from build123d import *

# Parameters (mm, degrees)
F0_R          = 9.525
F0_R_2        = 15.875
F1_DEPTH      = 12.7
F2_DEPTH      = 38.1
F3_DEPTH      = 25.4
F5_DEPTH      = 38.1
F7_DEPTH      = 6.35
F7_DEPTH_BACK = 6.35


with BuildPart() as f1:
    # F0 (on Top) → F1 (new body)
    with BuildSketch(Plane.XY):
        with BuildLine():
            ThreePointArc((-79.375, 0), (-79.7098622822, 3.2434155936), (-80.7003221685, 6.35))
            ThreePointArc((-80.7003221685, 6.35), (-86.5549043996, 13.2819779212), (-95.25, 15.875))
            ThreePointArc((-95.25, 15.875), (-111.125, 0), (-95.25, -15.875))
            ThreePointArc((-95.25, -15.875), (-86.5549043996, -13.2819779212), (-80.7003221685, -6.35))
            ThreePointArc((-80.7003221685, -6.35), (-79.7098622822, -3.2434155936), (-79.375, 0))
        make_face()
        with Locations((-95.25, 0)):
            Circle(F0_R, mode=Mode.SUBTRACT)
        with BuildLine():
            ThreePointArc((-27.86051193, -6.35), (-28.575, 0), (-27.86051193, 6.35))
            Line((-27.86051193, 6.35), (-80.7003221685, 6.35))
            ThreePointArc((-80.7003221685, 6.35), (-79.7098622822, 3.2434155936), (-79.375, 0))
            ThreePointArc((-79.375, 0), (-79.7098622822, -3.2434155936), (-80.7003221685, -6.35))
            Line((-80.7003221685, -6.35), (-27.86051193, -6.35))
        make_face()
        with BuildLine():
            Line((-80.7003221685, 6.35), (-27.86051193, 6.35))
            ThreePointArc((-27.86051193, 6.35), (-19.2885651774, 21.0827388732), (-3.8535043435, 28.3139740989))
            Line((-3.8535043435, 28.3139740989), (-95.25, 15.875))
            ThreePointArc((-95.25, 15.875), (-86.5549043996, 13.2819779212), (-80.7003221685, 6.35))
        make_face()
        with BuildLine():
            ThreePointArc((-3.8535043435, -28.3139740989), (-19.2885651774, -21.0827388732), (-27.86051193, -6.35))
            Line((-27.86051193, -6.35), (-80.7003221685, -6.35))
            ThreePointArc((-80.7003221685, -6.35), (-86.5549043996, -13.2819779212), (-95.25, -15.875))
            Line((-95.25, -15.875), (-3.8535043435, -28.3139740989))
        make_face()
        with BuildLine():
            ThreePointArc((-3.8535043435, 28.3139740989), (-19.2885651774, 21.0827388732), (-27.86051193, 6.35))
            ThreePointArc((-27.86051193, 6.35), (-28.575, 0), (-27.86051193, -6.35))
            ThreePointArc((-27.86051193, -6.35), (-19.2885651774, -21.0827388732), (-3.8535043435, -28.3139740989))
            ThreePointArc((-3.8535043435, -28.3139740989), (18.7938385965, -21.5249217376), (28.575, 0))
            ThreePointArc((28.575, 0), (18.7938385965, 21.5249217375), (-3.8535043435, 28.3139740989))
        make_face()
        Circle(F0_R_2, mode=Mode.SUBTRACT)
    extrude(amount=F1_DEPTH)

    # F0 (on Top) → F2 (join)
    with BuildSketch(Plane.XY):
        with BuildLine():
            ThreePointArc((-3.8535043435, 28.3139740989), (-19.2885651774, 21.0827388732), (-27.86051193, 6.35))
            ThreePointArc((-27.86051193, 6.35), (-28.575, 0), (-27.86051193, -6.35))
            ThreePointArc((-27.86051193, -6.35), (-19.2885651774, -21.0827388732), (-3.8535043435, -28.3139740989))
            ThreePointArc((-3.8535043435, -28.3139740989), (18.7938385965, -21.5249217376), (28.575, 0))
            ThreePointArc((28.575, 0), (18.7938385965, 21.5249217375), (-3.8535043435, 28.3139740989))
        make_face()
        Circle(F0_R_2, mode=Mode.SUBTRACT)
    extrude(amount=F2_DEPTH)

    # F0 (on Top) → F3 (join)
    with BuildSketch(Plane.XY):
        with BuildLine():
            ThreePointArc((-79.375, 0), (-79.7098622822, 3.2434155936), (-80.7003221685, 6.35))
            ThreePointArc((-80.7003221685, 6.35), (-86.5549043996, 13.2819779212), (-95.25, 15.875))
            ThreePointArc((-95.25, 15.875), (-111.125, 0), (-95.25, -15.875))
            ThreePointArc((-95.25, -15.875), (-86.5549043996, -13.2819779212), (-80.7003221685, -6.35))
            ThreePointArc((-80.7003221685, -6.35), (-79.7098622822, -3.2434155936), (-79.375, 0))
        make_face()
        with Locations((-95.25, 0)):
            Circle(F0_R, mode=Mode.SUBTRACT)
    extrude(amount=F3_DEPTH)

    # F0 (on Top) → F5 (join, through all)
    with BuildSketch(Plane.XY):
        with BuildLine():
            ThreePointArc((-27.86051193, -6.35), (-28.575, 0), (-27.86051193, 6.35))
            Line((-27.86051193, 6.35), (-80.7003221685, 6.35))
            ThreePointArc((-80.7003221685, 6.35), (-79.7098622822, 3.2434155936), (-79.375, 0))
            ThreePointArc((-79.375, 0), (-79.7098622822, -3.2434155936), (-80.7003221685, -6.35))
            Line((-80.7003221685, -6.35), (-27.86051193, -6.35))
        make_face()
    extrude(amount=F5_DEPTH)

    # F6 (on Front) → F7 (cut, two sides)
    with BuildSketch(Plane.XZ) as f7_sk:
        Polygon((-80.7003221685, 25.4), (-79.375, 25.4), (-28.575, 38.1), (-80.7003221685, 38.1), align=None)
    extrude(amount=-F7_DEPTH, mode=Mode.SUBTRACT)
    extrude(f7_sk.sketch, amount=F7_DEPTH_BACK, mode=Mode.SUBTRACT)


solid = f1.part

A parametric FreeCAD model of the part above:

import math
import FreeCAD as App
import Part
import Sketcher

V = App.Vector
Q = App.Units.Quantity

doc = App.newDocument("Part")
body = doc.addObject("PartDesign::Body", "Body")

# Sketch on XY plane
sketch1 = doc.addObject("Sketcher::SketchObject", "Sketch")
body.addObject(sketch1)
sketch1.AttachmentSupport = (doc.XY_Plane, [""])
sketch1.MapMode = "FlatFace"
sketch1.addGeometry(Part.ArcOfCircle(Part.Circle(V(-95, 0, 0), V(0, 0, 1), 16), math.radians(90), math.radians(270)), False)
sketch1.addGeometry(Part.LineSegment(V(-95, -16, 0), V(-4, -28, 0)), False)
sketch1.addGeometry(Part.ArcOfCircle(Part.Circle(V(0, 0, 0), V(0, 0, 1), 29), math.radians(-98), math.radians(0)), False)
sketch1.addGeometry(Part.ArcOfCircle(Part.Circle(V(0, 0, 0), V(0, 0, 1), 29), math.radians(0), math.radians(98)), False)
sketch1.addGeometry(Part.LineSegment(V(-4, 28, 0), V(-95, 16, 0)), False)
sketch1.addGeometry(Part.Circle(V(-95, 0, 0), V(0, 0, 1), 10), False)
sketch1.addGeometry(Part.Circle(V(0, 0, 0), V(0, 0, 1), 16), False)
sketch1.addConstraint(Sketcher.Constraint("Coincident", 0, 2, 1, 1))
sketch1.addConstraint(Sketcher.Constraint("Tangent", 1, 2, 2, 1))
sketch1.addConstraint(Sketcher.Constraint("Tangent", 2, 2, 3, 1))
sketch1.addConstraint(Sketcher.Constraint("Tangent", 3, 2, 4, 1))
sketch1.addConstraint(Sketcher.Constraint("Coincident", 4, 2, 0, 1))
sketch1.addConstraint(Sketcher.Constraint("Coincident", 2, 3, -1, 1))
sketch1.addConstraint(Sketcher.Constraint("Coincident", 6, 3, -1, 1))
sketch1.addConstraint(Sketcher.Constraint("Coincident", 5, 3, 0, 3))
sketch1.addConstraint(Sketcher.Constraint("Equal", 2, 3))
sketch1.addConstraint(Sketcher.Constraint("Equal", 0, 6))
sketch1.addConstraint(Sketcher.Constraint("Symmetric", 0, 2, 4, 2, -1))
sketch1.addConstraint(Sketcher.Constraint("PointOnObject", 2, 2, -1))
sketch1.addConstraint(Sketcher.Constraint("Vertical", 5, 3, 0, 2))
sketch1.addConstraint(Sketcher.Constraint("Diameter", 5, Q("0.75 in")))
sketch1.addConstraint(Sketcher.Constraint("Diameter", 6, Q("1.25 in")))
sketch1.addConstraint(Sketcher.Constraint("Radius", 2, Q("1.125 in")))
sketch1.addConstraint(Sketcher.Constraint("DistanceX", 0, 3, -1, 1, Q("3.75 in")))
pad1 = doc.addObject("PartDesign::Pad", "Pad")
body.addObject(pad1)
pad1.Profile = sketch1
pad1.Length = Q("0.5 in")

# Sketch on XY plane
sketch2 = doc.addObject("Sketcher::SketchObject", "Sketch001")
body.addObject(sketch2)
sketch2.AttachmentSupport = (doc.XY_Plane, [""])
sketch2.MapMode = "FlatFace"
sketch2.addGeometry(Part.ArcOfCircle(Part.Circle(V(0, 0, 0), V(0, 0, 1), 29), math.radians(98), math.radians(167)), False)
sketch2.addGeometry(Part.ArcOfCircle(Part.Circle(V(0, 0, 0), V(0, 0, 1), 29), math.radians(167), math.radians(193)), False)
sketch2.addGeometry(Part.ArcOfCircle(Part.Circle(V(0, 0, 0), V(0, 0, 1), 29), math.radians(-167), math.radians(0)), False)
sketch2.addGeometry(Part.ArcOfCircle(Part.Circle(V(0, 0, 0), V(0, 0, 1), 29), math.radians(0), math.radians(98)), False)
sketch2.addGeometry(Part.Circle(V(0, 0, 0), V(0, 0, 1), 16), False)
sketch2.addConstraint(Sketcher.Constraint("Tangent", 0, 2, 1, 1))
sketch2.addConstraint(Sketcher.Constraint("Tangent", 1, 2, 2, 1))
sketch2.addConstraint(Sketcher.Constraint("Tangent", 2, 2, 3, 1))
sketch2.addConstraint(Sketcher.Constraint("Tangent", 3, 2, 0, 1))
sketch2.addConstraint(Sketcher.Constraint("Coincident", 0, 3, -1, 1))
sketch2.addConstraint(Sketcher.Constraint("Coincident", 4, 3, -1, 1))
sketch2.addConstraint(Sketcher.Constraint("Equal", 0, 1))
sketch2.addConstraint(Sketcher.Constraint("PointOnObject", 2, 2, -1))
sketch2.addConstraint(Sketcher.Constraint("Vertical", 0, 2, 1, 2))
sketch2.addConstraint(Sketcher.Constraint("Diameter", 4, Q("1.25 in")))
sketch2.addConstraint(Sketcher.Constraint("Radius", 0, Q("1.125 in")))
sketch2.addConstraint(Sketcher.Constraint("DistanceY", 1, 2, 0, 2, Q("0.5 in")))
sketch2.addConstraint(Sketcher.Constraint("DistanceX", 3, 2, -1, 1, Q("3.853504 mm")))
pad2 = doc.addObject("PartDesign::Pad", "Pad001")
body.addObject(pad2)
pad2.Profile = sketch2
pad2.Length = Q("1.5 in")

# Sketch on XY plane
sketch3 = doc.addObject("Sketcher::SketchObject", "Sketch002")
body.addObject(sketch3)
sketch3.AttachmentSupport = (doc.XY_Plane, [""])
sketch3.MapMode = "FlatFace"
sketch3.addGeometry(Part.ArcOfCircle(Part.Circle(V(-95, 0, 0), V(0, 0, 1), 16), math.radians(0), math.radians(24)), False)
sketch3.addGeometry(Part.ArcOfCircle(Part.Circle(V(-95, 0, 0), V(0, 0, 1), 16), math.radians(24), math.radians(90)), False)
sketch3.addGeometry(Part.ArcOfCircle(Part.Circle(V(-95, 0, 0), V(0, 0, 1), 16), math.radians(90), math.radians(270)), False)
sketch3.addGeometry(Part.ArcOfCircle(Part.Circle(V(-95, 0, 0), V(0, 0, 1), 16), math.radians(-90), math.radians(-24)), False)
sketch3.addGeometry(Part.ArcOfCircle(Part.Circle(V(-95, 0, 0), V(0, 0, 1), 16), math.radians(-24), math.radians(0)), False)
sketch3.addGeometry(Part.Circle(V(-95, 0, 0), V(0, 0, 1), 10), False)
sketch3.addConstraint(Sketcher.Constraint("Tangent", 0, 2, 1, 1))
sketch3.addConstraint(Sketcher.Constraint("Tangent", 1, 2, 2, 1))
sketch3.addConstraint(Sketcher.Constraint("Tangent", 2, 2, 3, 1))
sketch3.addConstraint(Sketcher.Constraint("Tangent", 3, 2, 4, 1))
sketch3.addConstraint(Sketcher.Constraint("Tangent", 4, 2, 0, 1))
sketch3.addConstraint(Sketcher.Constraint("Coincident", 2, 3, 0, 3))
sketch3.addConstraint(Sketcher.Constraint("Coincident", 5, 3, 0, 3))
sketch3.addConstraint(Sketcher.Constraint("Symmetric", 1, 2, 2, 2, -1))
sketch3.addConstraint(Sketcher.Constraint("PointOnObject", 4, 2, -1))
sketch3.addConstraint(Sketcher.Constraint("Vertical", 5, 3, 1, 2))
sketch3.addConstraint(Sketcher.Constraint("Vertical", 0, 2, 3, 2))
sketch3.addConstraint(Sketcher.Constraint("Diameter", 5, Q("0.75 in")))
sketch3.addConstraint(Sketcher.Constraint("Radius", 0, Q("0.625 in")))
sketch3.addConstraint(Sketcher.Constraint("DistanceY", 3, 2, 0, 2, Q("0.5 in")))
sketch3.addConstraint(Sketcher.Constraint("DistanceX", 0, 3, -1, 1, Q("3.75 in")))
pad3 = doc.addObject("PartDesign::Pad", "Pad002")
body.addObject(pad3)
pad3.Profile = sketch3
pad3.Length = Q("1 in")

# Sketch on XY plane
sketch4 = doc.addObject("Sketcher::SketchObject", "Sketch003")
body.addObject(sketch4)
sketch4.AttachmentSupport = (doc.XY_Plane, [""])
sketch4.MapMode = "FlatFace"
sketch4.addGeometry(Part.ArcOfCircle(Part.Circle(V(0, 0, 0), V(0, 0, 1), 29), math.radians(167), math.radians(193)), False)
sketch4.addGeometry(Part.LineSegment(V(-28, 6, 0), V(-81, 6, 0)), False)
sketch4.addGeometry(Part.ArcOfCircle(Part.Circle(V(-95, 0, 0), V(0, 0, 1), 16), math.radians(0), math.radians(24)), False)
sketch4.addGeometry(Part.ArcOfCircle(Part.Circle(V(-95, 0, 0), V(0, 0, 1), 16), math.radians(-24), math.radians(0)), False)
sketch4.addGeometry(Part.LineSegment(V(-81, -6, 0), V(-28, -6, 0)), False)
sketch4.addConstraint(Sketcher.Constraint("Coincident", 0, 1, 1, 1))
sketch4.addConstraint(Sketcher.Constraint("Coincident", 1, 2, 2, 2))
sketch4.addConstraint(Sketcher.Constraint("Tangent", 2, 1, 3, 2))
sketch4.addConstraint(Sketcher.Constraint("Coincident", 3, 1, 4, 1))
sketch4.addConstraint(Sketcher.Constraint("Coincident", 4, 2, 0, 2))
sketch4.addConstraint(Sketcher.Constraint("Horizontal", 1))
sketch4.addConstraint(Sketcher.Constraint("Horizontal", 4))
sketch4.addConstraint(Sketcher.Constraint("Coincident", 0, 3, -1, 1))
sketch4.addConstraint(Sketcher.Constraint("Equal", 2, 3))
sketch4.addConstraint(Sketcher.Constraint("Symmetric", 1, 2, 3, 1, -1))
sketch4.addConstraint(Sketcher.Constraint("PointOnObject", 2, 1, -1))
sketch4.addConstraint(Sketcher.Constraint("Radius", 0, Q("1.125 in")))
sketch4.addConstraint(Sketcher.Constraint("Radius", 2, Q("0.625 in")))
sketch4.addConstraint(Sketcher.Constraint("DistanceY", 3, 1, 1, 2, Q("0.5 in")))
sketch4.addConstraint(Sketcher.Constraint("DistanceX", 2, 3, -1, 1, Q("3.75 in")))
pad4 = doc.addObject("PartDesign::Pad", "Pad003")
body.addObject(pad4)
pad4.Profile = sketch4
pad4.Length = Q("1.5 in")

# Sketch on XZ plane
sketch5 = doc.addObject("Sketcher::SketchObject", "Sketch004")
body.addObject(sketch5)
sketch5.AttachmentSupport = (doc.XZ_Plane, [""])
sketch5.MapMode = "FlatFace"
sketch5.addGeometry(Part.LineSegment(V(-80.7, 25.4, 0), V(-79.4, 25.4, 0)), False)
sketch5.addGeometry(Part.LineSegment(V(-79.4, 25.4, 0), V(-28.6, 38.1, 0)), False)
sketch5.addGeometry(Part.LineSegment(V(-28.6, 38.1, 0), V(-80.7, 38.1, 0)), False)
sketch5.addGeometry(Part.LineSegment(V(-80.7, 38.1, 0), V(-80.7, 25.4, 0)), False)
sketch5.addConstraint(Sketcher.Constraint("Coincident", 0, 2, 1, 1))
sketch5.addConstraint(Sketcher.Constraint("Coincident", 1, 2, 2, 1))
sketch5.addConstraint(Sketcher.Constraint("Coincident", 2, 2, 3, 1))
sketch5.addConstraint(Sketcher.Constraint("Coincident", 3, 2, 0, 1))
sketch5.addConstraint(Sketcher.Constraint("Horizontal", 0))
sketch5.addConstraint(Sketcher.Constraint("Horizontal", 2))
sketch5.addConstraint(Sketcher.Constraint("Vertical", 3))
sketch5.addConstraint(Sketcher.Constraint("DistanceY", 3, 2, 3, 1, Q("0.5 in")))
sketch5.addConstraint(Sketcher.Constraint("DistanceY", -1, 1, 0, 2, Q("1 in")))
sketch5.addConstraint(Sketcher.Constraint("DistanceX", 0, 2, 1, 2, Q("2 in")))
sketch5.addConstraint(Sketcher.Constraint("DistanceX", 0, 2, -1, 1, Q("3.125 in")))
sketch5.addConstraint(Sketcher.Constraint("DistanceX", 0, 1, 0, 2, Q("1.325322 mm")))
pocket1 = doc.addObject("PartDesign::Pocket", "Pocket")
body.addObject(pocket1)
pocket1.Profile = sketch5
pocket1.Type = "ThroughAll"
pocket1.Midplane = True

doc.recompute()
